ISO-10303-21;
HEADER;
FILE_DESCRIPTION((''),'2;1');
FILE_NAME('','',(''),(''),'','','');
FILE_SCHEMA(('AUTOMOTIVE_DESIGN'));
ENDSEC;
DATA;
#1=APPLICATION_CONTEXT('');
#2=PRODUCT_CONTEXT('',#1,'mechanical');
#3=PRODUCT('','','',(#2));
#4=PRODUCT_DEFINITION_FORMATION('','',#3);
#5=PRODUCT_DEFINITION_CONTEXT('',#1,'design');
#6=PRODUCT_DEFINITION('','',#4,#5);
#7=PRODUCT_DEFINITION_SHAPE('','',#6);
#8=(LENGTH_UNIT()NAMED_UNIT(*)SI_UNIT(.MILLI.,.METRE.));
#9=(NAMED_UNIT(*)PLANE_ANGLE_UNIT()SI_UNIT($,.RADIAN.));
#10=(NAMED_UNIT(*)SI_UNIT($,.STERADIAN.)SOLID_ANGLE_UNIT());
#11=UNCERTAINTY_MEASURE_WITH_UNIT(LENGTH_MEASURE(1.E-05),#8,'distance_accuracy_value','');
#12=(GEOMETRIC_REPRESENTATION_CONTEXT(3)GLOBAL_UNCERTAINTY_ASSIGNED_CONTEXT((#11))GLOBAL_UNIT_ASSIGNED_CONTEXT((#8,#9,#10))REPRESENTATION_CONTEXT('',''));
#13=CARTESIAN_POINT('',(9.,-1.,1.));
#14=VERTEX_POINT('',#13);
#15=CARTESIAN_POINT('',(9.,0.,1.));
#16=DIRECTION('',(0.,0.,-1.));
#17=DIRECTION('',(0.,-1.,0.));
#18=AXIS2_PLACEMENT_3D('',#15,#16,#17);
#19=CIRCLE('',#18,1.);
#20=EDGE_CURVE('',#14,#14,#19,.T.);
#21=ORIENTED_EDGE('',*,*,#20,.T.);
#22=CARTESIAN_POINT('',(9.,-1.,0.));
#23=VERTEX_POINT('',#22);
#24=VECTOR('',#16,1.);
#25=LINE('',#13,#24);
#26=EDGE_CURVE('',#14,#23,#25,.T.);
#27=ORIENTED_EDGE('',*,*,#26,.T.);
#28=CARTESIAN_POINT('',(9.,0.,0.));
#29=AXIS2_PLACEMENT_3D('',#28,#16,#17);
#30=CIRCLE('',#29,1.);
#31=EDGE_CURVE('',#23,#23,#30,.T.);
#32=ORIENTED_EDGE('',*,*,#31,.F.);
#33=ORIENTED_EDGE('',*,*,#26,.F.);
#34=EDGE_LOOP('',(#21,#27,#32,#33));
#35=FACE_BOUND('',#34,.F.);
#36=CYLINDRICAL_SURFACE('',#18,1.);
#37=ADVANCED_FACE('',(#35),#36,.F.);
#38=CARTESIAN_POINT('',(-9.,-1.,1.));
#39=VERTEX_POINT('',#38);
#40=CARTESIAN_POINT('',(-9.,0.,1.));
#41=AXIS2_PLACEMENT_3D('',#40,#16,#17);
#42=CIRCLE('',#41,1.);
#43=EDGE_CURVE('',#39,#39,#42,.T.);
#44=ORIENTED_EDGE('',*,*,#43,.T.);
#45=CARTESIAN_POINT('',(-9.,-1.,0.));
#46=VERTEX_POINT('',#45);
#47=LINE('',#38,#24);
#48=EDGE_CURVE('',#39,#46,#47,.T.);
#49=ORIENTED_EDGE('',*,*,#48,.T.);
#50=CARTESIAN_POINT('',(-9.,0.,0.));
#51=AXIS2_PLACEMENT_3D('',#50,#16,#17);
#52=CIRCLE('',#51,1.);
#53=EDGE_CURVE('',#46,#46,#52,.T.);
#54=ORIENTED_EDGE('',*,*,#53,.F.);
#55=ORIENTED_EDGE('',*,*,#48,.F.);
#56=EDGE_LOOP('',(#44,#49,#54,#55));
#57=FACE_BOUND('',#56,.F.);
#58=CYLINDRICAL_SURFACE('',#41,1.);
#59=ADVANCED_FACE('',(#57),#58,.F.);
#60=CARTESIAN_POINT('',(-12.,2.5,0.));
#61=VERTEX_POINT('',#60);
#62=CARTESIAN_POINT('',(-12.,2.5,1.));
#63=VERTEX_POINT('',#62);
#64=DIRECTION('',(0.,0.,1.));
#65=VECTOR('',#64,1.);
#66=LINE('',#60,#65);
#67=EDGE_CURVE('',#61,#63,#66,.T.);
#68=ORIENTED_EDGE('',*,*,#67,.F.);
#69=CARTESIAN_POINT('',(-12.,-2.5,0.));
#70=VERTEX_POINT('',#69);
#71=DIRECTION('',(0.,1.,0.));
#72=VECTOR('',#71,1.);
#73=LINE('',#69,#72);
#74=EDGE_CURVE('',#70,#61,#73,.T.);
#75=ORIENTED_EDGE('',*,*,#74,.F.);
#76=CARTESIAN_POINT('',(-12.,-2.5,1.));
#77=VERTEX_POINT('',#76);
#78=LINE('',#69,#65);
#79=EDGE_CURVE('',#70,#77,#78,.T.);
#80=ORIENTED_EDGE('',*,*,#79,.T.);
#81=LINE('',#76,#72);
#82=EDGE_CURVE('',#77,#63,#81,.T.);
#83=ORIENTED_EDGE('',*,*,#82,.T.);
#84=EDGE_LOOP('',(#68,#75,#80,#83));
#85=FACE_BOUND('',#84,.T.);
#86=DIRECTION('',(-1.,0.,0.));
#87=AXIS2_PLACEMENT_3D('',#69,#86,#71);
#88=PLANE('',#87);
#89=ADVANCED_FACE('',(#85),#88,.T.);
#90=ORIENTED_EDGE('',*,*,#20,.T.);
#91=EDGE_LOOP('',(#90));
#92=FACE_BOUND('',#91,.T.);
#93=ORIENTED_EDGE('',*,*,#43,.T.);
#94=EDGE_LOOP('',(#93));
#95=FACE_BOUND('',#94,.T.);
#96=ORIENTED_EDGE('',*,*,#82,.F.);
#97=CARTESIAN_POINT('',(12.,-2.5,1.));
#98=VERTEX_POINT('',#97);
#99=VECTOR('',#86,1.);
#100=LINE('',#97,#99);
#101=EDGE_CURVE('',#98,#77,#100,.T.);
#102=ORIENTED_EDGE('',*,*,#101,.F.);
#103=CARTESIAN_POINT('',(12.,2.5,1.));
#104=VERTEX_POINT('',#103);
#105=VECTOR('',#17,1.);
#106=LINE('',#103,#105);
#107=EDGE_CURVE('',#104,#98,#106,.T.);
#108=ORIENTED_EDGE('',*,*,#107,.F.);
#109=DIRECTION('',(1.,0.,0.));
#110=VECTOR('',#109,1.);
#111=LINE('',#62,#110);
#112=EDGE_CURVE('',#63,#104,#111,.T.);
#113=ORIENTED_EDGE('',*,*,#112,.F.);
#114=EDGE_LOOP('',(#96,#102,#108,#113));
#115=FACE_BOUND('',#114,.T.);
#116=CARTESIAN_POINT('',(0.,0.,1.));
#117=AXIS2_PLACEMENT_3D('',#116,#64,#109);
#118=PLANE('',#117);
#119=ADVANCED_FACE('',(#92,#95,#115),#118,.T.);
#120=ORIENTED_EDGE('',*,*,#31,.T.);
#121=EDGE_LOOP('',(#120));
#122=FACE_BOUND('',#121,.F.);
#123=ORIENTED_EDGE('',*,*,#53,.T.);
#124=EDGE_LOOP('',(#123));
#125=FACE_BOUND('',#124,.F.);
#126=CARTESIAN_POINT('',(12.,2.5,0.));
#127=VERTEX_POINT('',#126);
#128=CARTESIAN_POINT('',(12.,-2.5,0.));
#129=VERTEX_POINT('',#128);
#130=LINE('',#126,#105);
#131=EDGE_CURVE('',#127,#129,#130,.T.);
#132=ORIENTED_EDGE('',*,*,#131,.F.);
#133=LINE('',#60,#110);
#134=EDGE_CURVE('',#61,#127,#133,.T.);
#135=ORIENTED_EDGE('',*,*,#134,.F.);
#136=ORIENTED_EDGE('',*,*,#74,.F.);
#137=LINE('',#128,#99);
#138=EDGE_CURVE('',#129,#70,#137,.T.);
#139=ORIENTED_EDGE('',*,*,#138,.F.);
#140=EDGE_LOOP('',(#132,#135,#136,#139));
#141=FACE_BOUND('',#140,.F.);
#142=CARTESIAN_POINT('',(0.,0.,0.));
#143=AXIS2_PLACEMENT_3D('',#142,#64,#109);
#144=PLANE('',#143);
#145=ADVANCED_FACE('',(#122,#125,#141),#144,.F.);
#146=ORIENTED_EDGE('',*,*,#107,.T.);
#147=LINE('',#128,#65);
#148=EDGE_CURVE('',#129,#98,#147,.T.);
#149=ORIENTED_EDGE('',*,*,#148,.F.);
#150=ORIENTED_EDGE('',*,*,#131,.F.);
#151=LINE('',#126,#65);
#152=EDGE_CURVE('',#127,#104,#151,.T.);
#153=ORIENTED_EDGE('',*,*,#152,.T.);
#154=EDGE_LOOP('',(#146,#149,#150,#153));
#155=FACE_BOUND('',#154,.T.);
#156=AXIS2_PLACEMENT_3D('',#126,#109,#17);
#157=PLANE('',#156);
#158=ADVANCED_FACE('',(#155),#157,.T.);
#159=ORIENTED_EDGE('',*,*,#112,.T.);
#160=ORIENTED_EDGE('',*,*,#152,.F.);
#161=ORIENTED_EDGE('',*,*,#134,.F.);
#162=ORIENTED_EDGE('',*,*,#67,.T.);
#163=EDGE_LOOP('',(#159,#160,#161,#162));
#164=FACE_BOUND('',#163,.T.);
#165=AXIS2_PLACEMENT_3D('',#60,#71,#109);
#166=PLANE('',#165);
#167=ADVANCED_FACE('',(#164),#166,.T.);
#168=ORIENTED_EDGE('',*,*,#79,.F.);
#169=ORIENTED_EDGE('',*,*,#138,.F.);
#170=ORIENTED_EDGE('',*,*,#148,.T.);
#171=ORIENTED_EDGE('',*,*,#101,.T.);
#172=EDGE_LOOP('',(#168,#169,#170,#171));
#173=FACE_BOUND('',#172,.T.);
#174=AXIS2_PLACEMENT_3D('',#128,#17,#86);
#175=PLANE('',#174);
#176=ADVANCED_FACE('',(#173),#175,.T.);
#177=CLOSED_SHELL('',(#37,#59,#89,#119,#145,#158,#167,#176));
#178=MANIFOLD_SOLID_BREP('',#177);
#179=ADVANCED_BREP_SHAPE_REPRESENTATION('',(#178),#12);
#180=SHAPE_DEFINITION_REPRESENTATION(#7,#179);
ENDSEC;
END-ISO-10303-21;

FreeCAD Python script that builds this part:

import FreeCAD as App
import Part
import Sketcher

V = App.Vector


def add_polygon(sketch, points):
    """Adds a closed chain of lines whose ends are joined by coincident constraints."""
    first, n = sketch.GeometryCount, len(points)
    for a, b in zip(points, points[1:] + points[:1]):
        sketch.addGeometry(Part.LineSegment(App.Vector(*a, 0), App.Vector(*b, 0)), False)
    for i in range(n):
        sketch.addConstraint(Sketcher.Constraint("Coincident", first + i, 2, first + (i + 1) % n, 1))

doc = App.newDocument("Part")
body = doc.addObject("PartDesign::Body", "Body")

# Sketch on XY plane
sketch1 = body.newObject("Sketcher::SketchObject", "Sketch")
sketch1.AttachmentSupport = (doc.getObject("XY_Plane"), [""])
sketch1.MapMode = "FlatFace"
add_polygon(sketch1, [(12, 2.5), (-12, 2.5), (-12, -2.5), (12, -2.5)])  # lines 0-3
sketch1.addConstraint([
    Sketcher.Constraint("Horizontal", 0),
    Sketcher.Constraint("Vertical", 1),
    Sketcher.Constraint("Horizontal", 2),
    Sketcher.Constraint("Vertical", 3),
    Sketcher.Constraint("Symmetric", 0, 2, 2, 2, -1, 1),
    Sketcher.Constraint("DistanceX", 0, 2, 0, 1, 24.0),
    Sketcher.Constraint("DistanceY", 1, 2, 1, 1, 5.0),
])
pad1 = body.newObject("PartDesign::Pad", "Pad")
pad1.Profile = sketch1
pad1.Length = 1

# Sketch on XY plane
sketch2 = body.newObject("Sketcher::SketchObject", "Sketch001")
sketch2.AttachmentSupport = (doc.getObject("XY_Plane"), [""])
sketch2.MapMode = "FlatFace"
sketch2.AttachmentOffset = App.Placement(V(0, 0, 1), App.Rotation())
sketch2.addGeometry([
    Part.Circle(V(9, 0, 0), V(0, 0, 1), 1),
    Part.Circle(V(-9, 0, 0), V(0, 0, 1), 1),
], False)
sketch2.addConstraint([
    Sketcher.Constraint("Equal", 0, 1),
    Sketcher.Constraint("Symmetric", 0, 3, 1, 3, -1, 1),
    Sketcher.Constraint("PointOnObject", 0, 3, -1),
    Sketcher.Constraint("Diameter", 0, 2.0),
    Sketcher.Constraint("DistanceX", -1, 1, 0, 3, 9.0),
])
doc.recompute()
hole = body.newObject("PartDesign::Hole", "Hole")
hole.Profile = sketch2
hole.ThreadType = "None"
hole.Diameter = 2
hole.DepthType = "ThroughAll"

doc.recompute()
